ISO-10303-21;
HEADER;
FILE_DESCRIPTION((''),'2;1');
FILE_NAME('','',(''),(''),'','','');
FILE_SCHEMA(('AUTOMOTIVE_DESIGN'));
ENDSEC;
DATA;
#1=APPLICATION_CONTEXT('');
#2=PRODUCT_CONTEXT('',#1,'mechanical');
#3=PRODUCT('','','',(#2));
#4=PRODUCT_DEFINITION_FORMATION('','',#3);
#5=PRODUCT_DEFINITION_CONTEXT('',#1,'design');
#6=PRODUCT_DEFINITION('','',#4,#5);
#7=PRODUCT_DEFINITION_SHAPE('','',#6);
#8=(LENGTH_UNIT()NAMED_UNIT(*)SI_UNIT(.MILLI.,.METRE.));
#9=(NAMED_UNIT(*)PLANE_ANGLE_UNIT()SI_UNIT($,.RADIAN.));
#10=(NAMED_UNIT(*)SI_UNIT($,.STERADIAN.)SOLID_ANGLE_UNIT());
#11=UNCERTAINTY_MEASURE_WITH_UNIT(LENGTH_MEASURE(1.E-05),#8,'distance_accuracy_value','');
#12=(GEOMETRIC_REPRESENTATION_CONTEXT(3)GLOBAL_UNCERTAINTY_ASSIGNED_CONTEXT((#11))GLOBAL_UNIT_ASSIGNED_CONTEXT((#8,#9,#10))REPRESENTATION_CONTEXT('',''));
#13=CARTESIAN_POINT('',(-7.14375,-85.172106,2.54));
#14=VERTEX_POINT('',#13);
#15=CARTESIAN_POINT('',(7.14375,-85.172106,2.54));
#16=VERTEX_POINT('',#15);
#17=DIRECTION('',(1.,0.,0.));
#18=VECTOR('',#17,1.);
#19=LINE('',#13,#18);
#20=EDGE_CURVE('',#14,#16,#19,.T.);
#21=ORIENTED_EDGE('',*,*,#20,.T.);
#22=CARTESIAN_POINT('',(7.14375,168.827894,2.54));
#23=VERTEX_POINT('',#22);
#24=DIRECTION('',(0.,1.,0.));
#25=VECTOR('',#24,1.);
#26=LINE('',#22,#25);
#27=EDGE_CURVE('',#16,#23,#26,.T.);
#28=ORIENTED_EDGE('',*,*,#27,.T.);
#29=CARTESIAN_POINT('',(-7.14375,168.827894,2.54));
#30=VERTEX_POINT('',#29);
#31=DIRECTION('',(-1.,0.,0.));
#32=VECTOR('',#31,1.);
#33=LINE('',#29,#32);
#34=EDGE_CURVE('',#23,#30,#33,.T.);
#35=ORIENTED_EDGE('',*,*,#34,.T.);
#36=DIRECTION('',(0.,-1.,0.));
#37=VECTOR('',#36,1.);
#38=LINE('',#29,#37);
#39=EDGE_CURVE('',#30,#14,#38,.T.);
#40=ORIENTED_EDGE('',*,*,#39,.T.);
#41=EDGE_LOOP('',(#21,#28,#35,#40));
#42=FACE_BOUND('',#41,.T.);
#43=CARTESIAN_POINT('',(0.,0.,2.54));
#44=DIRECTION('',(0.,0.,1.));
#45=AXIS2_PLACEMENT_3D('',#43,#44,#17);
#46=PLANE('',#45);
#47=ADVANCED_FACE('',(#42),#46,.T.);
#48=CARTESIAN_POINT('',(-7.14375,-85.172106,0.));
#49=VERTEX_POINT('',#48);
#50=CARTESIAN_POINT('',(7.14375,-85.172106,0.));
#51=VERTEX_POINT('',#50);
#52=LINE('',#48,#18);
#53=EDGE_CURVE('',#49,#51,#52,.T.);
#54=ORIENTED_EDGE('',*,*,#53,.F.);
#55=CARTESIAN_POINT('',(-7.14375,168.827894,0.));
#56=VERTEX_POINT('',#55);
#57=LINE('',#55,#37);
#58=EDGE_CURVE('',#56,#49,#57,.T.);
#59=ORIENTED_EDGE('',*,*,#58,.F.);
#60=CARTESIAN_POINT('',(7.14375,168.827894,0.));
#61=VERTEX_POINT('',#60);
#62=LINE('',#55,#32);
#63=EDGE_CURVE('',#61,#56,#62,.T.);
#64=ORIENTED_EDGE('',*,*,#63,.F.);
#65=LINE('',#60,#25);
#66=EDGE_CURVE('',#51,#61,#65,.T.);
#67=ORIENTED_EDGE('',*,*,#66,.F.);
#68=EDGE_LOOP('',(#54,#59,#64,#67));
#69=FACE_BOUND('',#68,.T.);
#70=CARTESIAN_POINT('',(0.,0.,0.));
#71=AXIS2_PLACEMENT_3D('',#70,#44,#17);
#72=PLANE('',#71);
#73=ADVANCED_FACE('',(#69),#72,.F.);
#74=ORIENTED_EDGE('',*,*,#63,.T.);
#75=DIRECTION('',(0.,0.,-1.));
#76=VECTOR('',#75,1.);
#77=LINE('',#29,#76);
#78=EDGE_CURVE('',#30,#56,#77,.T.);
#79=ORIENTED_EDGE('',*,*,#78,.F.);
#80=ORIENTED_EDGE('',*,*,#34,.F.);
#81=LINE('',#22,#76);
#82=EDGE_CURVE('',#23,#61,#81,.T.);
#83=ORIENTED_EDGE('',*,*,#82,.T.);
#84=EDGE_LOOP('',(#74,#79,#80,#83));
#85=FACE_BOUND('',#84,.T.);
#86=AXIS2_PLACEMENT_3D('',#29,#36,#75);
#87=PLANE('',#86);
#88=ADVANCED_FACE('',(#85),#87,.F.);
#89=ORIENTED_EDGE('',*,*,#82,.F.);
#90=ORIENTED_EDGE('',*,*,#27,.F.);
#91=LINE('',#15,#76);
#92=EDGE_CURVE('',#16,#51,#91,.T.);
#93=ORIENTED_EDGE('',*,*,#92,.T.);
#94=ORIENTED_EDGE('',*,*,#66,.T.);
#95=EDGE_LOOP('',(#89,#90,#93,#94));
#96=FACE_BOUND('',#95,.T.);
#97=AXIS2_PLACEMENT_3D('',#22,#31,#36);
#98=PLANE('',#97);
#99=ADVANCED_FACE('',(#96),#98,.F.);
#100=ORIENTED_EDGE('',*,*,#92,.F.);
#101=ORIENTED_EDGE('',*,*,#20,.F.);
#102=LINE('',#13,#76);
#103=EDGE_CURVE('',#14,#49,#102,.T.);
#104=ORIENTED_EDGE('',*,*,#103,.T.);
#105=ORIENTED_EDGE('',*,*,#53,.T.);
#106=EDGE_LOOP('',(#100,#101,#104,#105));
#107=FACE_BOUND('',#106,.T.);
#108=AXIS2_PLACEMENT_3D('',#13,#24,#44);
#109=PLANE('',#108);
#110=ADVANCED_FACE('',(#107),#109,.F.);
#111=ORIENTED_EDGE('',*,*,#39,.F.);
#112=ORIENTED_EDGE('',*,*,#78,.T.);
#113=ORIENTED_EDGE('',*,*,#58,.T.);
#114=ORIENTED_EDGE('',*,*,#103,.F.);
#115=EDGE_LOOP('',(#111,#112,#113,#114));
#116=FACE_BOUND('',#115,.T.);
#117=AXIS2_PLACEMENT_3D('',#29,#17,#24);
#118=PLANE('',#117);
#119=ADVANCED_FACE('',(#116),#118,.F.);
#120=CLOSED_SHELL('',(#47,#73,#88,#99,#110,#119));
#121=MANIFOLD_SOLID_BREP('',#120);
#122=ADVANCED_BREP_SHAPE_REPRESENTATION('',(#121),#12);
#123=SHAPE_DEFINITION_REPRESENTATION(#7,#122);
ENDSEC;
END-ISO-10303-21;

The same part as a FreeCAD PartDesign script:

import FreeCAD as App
import Part
import Sketcher

V = App.Vector
Q = App.Units.Quantity

doc = App.newDocument("Part")
body = doc.addObject("PartDesign::Body", "Body")

sketch1 = body.newObject("Sketcher::SketchObject", "Sketch")
sketch1.AttachmentSupport = (doc.getObject("XY_Plane"), [""])
sketch1.MapMode = "FlatFace"
sketch1.addGeometry([
    Part.LineSegment(V(-7, 169, 0), V(-7, -85, 0)),
    Part.LineSegment(V(-7, -85, 0), V(7, -85, 0)),
    Part.LineSegment(V(7, -85, 0), V(7, 169, 0)),
    Part.LineSegment(V(7, 169, 0), V(-7, 169, 0)),
], False)
sketch1.addConstraint([
    Sketcher.Constraint("Coincident", 0, 2, 1, 1),
    Sketcher.Constraint("Coincident", 1, 2, 2, 1),
    Sketcher.Constraint("Coincident", 2, 2, 3, 1),
    Sketcher.Constraint("Coincident", 3, 2, 0, 1),
    Sketcher.Constraint("Vertical", 0),
    Sketcher.Constraint("Horizontal", 1),
    Sketcher.Constraint("Vertical", 2),
    Sketcher.Constraint("Horizontal", 3),
    Sketcher.Constraint("DistanceY", 0, 2, 0, 1, Q("10 in")),
    Sketcher.Constraint("DistanceX", 1, 1, 1, 2, Q("0.5625 in")),
    Sketcher.Constraint("DistanceX", 0, 2, -1, 1, Q("0.28125 in")),
    Sketcher.Constraint("DistanceY", 0, 2, -1, 1, Q("85.172106 mm")),
])
pad1 = body.newObject("PartDesign::Pad", "Pad")
pad1.Profile = sketch1
pad1.Length = Q("0.1 in")

doc.recompute()
